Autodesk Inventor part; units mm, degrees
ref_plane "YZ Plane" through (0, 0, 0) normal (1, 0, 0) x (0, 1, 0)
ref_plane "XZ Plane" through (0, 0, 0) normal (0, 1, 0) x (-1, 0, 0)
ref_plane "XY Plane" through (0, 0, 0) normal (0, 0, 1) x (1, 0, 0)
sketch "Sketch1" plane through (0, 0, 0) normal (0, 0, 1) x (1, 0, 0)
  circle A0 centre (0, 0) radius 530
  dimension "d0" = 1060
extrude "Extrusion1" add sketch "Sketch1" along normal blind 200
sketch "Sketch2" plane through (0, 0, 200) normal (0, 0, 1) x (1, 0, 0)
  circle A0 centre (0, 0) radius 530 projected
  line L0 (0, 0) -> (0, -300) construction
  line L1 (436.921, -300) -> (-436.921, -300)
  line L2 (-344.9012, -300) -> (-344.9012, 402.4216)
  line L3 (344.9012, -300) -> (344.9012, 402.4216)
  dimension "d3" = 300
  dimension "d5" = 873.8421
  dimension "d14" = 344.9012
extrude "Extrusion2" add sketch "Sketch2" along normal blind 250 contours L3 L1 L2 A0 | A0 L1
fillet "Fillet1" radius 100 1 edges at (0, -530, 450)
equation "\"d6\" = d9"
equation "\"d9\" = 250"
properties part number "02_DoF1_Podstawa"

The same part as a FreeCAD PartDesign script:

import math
import FreeCAD as App
import Part
import Sketcher
Q = App.Units.Quantity


def edges_at(feature, points):
    """Names of the edges that pass closest to the given points."""
    edges = feature.Shape.Edges
    near = lambda p: min(range(len(edges)), key=lambda i: edges[i].distToShape(Part.Vertex(*p))[0])
    return sorted({f"Edge{near(p) + 1}" for p in points})

doc = App.newDocument("Part")
body = doc.addObject("PartDesign::Body", "Body")

# Sketch on XY plane
sketch1 = body.newObject("Sketcher::SketchObject", "Sketch")
sketch1.AttachmentSupport = (doc.getObject("XY_Plane"), [""])
sketch1.MapMode = "FlatFace"
sketch1.addGeometry(Part.Circle(App.Vector(0, 0, 0), App.Vector(0, 0, 1), 530), False)
sketch1.addConstraint(Sketcher.Constraint("Coincident", 0, 3, -1, 1))
sketch1.addConstraint(Sketcher.Constraint("Diameter", 0, Q("1060 mm")))
pad1 = body.newObject("PartDesign::Pad", "Pad")
pad1.Profile = sketch1
pad1.Length = 200

# Sketch on XY plane
sketch2 = body.newObject("Sketcher::SketchObject", "Sketch001")
sketch2.AttachmentSupport = (doc.getObject("XY_Plane"), [""])
sketch2.MapMode = "FlatFace"
sketch2.AttachmentOffset = App.Placement(App.Vector(0, 0, 200), App.Rotation())
sketch2.addGeometry(Part.LineSegment(App.Vector(344.9012, -300, 0), App.Vector(344.9012, 402.4216, 0)), False)
sketch2.addGeometry(Part.ArcOfCircle(Part.Circle(App.Vector(0, 0, 0), App.Vector(0, 0, 1), 530), math.radians(49.401299), math.radians(130.598701)), False)
sketch2.addGeometry(Part.LineSegment(App.Vector(-344.9012, 402.4216, 0), App.Vector(-344.9012, -300, 0)), False)
sketch2.addGeometry(Part.LineSegment(App.Vector(-344.9012, -300, 0), App.Vector(-436.921, -300, 0)), False)
sketch2.addGeometry(Part.ArcOfCircle(Part.Circle(App.Vector(0, 0, 0), App.Vector(0, 0, 1), 530), math.radians(-145.525613), math.radians(-34.474387)), False)
sketch2.addGeometry(Part.LineSegment(App.Vector(436.921, -300, 0), App.Vector(344.9012, -300, 0)), False)
sketch2.addConstraint(Sketcher.Constraint("Coincident", 0, 2, 1, 1))
sketch2.addConstraint(Sketcher.Constraint("Coincident", 1, 2, 2, 1))
sketch2.addConstraint(Sketcher.Constraint("Coincident", 2, 2, 3, 1))
sketch2.addConstraint(Sketcher.Constraint("Coincident", 3, 2, 4, 1))
sketch2.addConstraint(Sketcher.Constraint("Coincident", 4, 2, 5, 1))
sketch2.addConstraint(Sketcher.Constraint("Coincident", 5, 2, 0, 1))
sketch2.addConstraint(Sketcher.Constraint("Vertical", 0))
sketch2.addConstraint(Sketcher.Constraint("Vertical", 2))
sketch2.addConstraint(Sketcher.Constraint("Horizontal", 3))
sketch2.addConstraint(Sketcher.Constraint("Horizontal", 5))
sketch2.addConstraint(Sketcher.Constraint("Coincident", 1, 3, -1, 1))
sketch2.addConstraint(Sketcher.Constraint("Coincident", 4, 3, -1, 1))
sketch2.addConstraint(Sketcher.Constraint("Equal", 1, 4))
sketch2.addConstraint(Sketcher.Constraint("Symmetric", 2, 2, 5, 2, -2))
sketch2.addConstraint(Sketcher.Constraint("DistanceY", 2, 2, -1, 1, Q("300 mm")))
sketch2.addConstraint(Sketcher.Constraint("Radius", 1, Q("530 mm")))
sketch2.addConstraint(Sketcher.Constraint("DistanceX", -1, 1, 0, 2, Q("344.9012 mm")))
pad2 = body.newObject("PartDesign::Pad", "Pad001")
pad2.Profile = sketch2
pad2.Length = 250
doc.recompute()

fillet = body.newObject("PartDesign::Fillet", "Fillet")
fillet.Base = (pad2, edges_at(pad2, [(0, -530, 450)]))
fillet.Radius = 100

doc.recompute()
